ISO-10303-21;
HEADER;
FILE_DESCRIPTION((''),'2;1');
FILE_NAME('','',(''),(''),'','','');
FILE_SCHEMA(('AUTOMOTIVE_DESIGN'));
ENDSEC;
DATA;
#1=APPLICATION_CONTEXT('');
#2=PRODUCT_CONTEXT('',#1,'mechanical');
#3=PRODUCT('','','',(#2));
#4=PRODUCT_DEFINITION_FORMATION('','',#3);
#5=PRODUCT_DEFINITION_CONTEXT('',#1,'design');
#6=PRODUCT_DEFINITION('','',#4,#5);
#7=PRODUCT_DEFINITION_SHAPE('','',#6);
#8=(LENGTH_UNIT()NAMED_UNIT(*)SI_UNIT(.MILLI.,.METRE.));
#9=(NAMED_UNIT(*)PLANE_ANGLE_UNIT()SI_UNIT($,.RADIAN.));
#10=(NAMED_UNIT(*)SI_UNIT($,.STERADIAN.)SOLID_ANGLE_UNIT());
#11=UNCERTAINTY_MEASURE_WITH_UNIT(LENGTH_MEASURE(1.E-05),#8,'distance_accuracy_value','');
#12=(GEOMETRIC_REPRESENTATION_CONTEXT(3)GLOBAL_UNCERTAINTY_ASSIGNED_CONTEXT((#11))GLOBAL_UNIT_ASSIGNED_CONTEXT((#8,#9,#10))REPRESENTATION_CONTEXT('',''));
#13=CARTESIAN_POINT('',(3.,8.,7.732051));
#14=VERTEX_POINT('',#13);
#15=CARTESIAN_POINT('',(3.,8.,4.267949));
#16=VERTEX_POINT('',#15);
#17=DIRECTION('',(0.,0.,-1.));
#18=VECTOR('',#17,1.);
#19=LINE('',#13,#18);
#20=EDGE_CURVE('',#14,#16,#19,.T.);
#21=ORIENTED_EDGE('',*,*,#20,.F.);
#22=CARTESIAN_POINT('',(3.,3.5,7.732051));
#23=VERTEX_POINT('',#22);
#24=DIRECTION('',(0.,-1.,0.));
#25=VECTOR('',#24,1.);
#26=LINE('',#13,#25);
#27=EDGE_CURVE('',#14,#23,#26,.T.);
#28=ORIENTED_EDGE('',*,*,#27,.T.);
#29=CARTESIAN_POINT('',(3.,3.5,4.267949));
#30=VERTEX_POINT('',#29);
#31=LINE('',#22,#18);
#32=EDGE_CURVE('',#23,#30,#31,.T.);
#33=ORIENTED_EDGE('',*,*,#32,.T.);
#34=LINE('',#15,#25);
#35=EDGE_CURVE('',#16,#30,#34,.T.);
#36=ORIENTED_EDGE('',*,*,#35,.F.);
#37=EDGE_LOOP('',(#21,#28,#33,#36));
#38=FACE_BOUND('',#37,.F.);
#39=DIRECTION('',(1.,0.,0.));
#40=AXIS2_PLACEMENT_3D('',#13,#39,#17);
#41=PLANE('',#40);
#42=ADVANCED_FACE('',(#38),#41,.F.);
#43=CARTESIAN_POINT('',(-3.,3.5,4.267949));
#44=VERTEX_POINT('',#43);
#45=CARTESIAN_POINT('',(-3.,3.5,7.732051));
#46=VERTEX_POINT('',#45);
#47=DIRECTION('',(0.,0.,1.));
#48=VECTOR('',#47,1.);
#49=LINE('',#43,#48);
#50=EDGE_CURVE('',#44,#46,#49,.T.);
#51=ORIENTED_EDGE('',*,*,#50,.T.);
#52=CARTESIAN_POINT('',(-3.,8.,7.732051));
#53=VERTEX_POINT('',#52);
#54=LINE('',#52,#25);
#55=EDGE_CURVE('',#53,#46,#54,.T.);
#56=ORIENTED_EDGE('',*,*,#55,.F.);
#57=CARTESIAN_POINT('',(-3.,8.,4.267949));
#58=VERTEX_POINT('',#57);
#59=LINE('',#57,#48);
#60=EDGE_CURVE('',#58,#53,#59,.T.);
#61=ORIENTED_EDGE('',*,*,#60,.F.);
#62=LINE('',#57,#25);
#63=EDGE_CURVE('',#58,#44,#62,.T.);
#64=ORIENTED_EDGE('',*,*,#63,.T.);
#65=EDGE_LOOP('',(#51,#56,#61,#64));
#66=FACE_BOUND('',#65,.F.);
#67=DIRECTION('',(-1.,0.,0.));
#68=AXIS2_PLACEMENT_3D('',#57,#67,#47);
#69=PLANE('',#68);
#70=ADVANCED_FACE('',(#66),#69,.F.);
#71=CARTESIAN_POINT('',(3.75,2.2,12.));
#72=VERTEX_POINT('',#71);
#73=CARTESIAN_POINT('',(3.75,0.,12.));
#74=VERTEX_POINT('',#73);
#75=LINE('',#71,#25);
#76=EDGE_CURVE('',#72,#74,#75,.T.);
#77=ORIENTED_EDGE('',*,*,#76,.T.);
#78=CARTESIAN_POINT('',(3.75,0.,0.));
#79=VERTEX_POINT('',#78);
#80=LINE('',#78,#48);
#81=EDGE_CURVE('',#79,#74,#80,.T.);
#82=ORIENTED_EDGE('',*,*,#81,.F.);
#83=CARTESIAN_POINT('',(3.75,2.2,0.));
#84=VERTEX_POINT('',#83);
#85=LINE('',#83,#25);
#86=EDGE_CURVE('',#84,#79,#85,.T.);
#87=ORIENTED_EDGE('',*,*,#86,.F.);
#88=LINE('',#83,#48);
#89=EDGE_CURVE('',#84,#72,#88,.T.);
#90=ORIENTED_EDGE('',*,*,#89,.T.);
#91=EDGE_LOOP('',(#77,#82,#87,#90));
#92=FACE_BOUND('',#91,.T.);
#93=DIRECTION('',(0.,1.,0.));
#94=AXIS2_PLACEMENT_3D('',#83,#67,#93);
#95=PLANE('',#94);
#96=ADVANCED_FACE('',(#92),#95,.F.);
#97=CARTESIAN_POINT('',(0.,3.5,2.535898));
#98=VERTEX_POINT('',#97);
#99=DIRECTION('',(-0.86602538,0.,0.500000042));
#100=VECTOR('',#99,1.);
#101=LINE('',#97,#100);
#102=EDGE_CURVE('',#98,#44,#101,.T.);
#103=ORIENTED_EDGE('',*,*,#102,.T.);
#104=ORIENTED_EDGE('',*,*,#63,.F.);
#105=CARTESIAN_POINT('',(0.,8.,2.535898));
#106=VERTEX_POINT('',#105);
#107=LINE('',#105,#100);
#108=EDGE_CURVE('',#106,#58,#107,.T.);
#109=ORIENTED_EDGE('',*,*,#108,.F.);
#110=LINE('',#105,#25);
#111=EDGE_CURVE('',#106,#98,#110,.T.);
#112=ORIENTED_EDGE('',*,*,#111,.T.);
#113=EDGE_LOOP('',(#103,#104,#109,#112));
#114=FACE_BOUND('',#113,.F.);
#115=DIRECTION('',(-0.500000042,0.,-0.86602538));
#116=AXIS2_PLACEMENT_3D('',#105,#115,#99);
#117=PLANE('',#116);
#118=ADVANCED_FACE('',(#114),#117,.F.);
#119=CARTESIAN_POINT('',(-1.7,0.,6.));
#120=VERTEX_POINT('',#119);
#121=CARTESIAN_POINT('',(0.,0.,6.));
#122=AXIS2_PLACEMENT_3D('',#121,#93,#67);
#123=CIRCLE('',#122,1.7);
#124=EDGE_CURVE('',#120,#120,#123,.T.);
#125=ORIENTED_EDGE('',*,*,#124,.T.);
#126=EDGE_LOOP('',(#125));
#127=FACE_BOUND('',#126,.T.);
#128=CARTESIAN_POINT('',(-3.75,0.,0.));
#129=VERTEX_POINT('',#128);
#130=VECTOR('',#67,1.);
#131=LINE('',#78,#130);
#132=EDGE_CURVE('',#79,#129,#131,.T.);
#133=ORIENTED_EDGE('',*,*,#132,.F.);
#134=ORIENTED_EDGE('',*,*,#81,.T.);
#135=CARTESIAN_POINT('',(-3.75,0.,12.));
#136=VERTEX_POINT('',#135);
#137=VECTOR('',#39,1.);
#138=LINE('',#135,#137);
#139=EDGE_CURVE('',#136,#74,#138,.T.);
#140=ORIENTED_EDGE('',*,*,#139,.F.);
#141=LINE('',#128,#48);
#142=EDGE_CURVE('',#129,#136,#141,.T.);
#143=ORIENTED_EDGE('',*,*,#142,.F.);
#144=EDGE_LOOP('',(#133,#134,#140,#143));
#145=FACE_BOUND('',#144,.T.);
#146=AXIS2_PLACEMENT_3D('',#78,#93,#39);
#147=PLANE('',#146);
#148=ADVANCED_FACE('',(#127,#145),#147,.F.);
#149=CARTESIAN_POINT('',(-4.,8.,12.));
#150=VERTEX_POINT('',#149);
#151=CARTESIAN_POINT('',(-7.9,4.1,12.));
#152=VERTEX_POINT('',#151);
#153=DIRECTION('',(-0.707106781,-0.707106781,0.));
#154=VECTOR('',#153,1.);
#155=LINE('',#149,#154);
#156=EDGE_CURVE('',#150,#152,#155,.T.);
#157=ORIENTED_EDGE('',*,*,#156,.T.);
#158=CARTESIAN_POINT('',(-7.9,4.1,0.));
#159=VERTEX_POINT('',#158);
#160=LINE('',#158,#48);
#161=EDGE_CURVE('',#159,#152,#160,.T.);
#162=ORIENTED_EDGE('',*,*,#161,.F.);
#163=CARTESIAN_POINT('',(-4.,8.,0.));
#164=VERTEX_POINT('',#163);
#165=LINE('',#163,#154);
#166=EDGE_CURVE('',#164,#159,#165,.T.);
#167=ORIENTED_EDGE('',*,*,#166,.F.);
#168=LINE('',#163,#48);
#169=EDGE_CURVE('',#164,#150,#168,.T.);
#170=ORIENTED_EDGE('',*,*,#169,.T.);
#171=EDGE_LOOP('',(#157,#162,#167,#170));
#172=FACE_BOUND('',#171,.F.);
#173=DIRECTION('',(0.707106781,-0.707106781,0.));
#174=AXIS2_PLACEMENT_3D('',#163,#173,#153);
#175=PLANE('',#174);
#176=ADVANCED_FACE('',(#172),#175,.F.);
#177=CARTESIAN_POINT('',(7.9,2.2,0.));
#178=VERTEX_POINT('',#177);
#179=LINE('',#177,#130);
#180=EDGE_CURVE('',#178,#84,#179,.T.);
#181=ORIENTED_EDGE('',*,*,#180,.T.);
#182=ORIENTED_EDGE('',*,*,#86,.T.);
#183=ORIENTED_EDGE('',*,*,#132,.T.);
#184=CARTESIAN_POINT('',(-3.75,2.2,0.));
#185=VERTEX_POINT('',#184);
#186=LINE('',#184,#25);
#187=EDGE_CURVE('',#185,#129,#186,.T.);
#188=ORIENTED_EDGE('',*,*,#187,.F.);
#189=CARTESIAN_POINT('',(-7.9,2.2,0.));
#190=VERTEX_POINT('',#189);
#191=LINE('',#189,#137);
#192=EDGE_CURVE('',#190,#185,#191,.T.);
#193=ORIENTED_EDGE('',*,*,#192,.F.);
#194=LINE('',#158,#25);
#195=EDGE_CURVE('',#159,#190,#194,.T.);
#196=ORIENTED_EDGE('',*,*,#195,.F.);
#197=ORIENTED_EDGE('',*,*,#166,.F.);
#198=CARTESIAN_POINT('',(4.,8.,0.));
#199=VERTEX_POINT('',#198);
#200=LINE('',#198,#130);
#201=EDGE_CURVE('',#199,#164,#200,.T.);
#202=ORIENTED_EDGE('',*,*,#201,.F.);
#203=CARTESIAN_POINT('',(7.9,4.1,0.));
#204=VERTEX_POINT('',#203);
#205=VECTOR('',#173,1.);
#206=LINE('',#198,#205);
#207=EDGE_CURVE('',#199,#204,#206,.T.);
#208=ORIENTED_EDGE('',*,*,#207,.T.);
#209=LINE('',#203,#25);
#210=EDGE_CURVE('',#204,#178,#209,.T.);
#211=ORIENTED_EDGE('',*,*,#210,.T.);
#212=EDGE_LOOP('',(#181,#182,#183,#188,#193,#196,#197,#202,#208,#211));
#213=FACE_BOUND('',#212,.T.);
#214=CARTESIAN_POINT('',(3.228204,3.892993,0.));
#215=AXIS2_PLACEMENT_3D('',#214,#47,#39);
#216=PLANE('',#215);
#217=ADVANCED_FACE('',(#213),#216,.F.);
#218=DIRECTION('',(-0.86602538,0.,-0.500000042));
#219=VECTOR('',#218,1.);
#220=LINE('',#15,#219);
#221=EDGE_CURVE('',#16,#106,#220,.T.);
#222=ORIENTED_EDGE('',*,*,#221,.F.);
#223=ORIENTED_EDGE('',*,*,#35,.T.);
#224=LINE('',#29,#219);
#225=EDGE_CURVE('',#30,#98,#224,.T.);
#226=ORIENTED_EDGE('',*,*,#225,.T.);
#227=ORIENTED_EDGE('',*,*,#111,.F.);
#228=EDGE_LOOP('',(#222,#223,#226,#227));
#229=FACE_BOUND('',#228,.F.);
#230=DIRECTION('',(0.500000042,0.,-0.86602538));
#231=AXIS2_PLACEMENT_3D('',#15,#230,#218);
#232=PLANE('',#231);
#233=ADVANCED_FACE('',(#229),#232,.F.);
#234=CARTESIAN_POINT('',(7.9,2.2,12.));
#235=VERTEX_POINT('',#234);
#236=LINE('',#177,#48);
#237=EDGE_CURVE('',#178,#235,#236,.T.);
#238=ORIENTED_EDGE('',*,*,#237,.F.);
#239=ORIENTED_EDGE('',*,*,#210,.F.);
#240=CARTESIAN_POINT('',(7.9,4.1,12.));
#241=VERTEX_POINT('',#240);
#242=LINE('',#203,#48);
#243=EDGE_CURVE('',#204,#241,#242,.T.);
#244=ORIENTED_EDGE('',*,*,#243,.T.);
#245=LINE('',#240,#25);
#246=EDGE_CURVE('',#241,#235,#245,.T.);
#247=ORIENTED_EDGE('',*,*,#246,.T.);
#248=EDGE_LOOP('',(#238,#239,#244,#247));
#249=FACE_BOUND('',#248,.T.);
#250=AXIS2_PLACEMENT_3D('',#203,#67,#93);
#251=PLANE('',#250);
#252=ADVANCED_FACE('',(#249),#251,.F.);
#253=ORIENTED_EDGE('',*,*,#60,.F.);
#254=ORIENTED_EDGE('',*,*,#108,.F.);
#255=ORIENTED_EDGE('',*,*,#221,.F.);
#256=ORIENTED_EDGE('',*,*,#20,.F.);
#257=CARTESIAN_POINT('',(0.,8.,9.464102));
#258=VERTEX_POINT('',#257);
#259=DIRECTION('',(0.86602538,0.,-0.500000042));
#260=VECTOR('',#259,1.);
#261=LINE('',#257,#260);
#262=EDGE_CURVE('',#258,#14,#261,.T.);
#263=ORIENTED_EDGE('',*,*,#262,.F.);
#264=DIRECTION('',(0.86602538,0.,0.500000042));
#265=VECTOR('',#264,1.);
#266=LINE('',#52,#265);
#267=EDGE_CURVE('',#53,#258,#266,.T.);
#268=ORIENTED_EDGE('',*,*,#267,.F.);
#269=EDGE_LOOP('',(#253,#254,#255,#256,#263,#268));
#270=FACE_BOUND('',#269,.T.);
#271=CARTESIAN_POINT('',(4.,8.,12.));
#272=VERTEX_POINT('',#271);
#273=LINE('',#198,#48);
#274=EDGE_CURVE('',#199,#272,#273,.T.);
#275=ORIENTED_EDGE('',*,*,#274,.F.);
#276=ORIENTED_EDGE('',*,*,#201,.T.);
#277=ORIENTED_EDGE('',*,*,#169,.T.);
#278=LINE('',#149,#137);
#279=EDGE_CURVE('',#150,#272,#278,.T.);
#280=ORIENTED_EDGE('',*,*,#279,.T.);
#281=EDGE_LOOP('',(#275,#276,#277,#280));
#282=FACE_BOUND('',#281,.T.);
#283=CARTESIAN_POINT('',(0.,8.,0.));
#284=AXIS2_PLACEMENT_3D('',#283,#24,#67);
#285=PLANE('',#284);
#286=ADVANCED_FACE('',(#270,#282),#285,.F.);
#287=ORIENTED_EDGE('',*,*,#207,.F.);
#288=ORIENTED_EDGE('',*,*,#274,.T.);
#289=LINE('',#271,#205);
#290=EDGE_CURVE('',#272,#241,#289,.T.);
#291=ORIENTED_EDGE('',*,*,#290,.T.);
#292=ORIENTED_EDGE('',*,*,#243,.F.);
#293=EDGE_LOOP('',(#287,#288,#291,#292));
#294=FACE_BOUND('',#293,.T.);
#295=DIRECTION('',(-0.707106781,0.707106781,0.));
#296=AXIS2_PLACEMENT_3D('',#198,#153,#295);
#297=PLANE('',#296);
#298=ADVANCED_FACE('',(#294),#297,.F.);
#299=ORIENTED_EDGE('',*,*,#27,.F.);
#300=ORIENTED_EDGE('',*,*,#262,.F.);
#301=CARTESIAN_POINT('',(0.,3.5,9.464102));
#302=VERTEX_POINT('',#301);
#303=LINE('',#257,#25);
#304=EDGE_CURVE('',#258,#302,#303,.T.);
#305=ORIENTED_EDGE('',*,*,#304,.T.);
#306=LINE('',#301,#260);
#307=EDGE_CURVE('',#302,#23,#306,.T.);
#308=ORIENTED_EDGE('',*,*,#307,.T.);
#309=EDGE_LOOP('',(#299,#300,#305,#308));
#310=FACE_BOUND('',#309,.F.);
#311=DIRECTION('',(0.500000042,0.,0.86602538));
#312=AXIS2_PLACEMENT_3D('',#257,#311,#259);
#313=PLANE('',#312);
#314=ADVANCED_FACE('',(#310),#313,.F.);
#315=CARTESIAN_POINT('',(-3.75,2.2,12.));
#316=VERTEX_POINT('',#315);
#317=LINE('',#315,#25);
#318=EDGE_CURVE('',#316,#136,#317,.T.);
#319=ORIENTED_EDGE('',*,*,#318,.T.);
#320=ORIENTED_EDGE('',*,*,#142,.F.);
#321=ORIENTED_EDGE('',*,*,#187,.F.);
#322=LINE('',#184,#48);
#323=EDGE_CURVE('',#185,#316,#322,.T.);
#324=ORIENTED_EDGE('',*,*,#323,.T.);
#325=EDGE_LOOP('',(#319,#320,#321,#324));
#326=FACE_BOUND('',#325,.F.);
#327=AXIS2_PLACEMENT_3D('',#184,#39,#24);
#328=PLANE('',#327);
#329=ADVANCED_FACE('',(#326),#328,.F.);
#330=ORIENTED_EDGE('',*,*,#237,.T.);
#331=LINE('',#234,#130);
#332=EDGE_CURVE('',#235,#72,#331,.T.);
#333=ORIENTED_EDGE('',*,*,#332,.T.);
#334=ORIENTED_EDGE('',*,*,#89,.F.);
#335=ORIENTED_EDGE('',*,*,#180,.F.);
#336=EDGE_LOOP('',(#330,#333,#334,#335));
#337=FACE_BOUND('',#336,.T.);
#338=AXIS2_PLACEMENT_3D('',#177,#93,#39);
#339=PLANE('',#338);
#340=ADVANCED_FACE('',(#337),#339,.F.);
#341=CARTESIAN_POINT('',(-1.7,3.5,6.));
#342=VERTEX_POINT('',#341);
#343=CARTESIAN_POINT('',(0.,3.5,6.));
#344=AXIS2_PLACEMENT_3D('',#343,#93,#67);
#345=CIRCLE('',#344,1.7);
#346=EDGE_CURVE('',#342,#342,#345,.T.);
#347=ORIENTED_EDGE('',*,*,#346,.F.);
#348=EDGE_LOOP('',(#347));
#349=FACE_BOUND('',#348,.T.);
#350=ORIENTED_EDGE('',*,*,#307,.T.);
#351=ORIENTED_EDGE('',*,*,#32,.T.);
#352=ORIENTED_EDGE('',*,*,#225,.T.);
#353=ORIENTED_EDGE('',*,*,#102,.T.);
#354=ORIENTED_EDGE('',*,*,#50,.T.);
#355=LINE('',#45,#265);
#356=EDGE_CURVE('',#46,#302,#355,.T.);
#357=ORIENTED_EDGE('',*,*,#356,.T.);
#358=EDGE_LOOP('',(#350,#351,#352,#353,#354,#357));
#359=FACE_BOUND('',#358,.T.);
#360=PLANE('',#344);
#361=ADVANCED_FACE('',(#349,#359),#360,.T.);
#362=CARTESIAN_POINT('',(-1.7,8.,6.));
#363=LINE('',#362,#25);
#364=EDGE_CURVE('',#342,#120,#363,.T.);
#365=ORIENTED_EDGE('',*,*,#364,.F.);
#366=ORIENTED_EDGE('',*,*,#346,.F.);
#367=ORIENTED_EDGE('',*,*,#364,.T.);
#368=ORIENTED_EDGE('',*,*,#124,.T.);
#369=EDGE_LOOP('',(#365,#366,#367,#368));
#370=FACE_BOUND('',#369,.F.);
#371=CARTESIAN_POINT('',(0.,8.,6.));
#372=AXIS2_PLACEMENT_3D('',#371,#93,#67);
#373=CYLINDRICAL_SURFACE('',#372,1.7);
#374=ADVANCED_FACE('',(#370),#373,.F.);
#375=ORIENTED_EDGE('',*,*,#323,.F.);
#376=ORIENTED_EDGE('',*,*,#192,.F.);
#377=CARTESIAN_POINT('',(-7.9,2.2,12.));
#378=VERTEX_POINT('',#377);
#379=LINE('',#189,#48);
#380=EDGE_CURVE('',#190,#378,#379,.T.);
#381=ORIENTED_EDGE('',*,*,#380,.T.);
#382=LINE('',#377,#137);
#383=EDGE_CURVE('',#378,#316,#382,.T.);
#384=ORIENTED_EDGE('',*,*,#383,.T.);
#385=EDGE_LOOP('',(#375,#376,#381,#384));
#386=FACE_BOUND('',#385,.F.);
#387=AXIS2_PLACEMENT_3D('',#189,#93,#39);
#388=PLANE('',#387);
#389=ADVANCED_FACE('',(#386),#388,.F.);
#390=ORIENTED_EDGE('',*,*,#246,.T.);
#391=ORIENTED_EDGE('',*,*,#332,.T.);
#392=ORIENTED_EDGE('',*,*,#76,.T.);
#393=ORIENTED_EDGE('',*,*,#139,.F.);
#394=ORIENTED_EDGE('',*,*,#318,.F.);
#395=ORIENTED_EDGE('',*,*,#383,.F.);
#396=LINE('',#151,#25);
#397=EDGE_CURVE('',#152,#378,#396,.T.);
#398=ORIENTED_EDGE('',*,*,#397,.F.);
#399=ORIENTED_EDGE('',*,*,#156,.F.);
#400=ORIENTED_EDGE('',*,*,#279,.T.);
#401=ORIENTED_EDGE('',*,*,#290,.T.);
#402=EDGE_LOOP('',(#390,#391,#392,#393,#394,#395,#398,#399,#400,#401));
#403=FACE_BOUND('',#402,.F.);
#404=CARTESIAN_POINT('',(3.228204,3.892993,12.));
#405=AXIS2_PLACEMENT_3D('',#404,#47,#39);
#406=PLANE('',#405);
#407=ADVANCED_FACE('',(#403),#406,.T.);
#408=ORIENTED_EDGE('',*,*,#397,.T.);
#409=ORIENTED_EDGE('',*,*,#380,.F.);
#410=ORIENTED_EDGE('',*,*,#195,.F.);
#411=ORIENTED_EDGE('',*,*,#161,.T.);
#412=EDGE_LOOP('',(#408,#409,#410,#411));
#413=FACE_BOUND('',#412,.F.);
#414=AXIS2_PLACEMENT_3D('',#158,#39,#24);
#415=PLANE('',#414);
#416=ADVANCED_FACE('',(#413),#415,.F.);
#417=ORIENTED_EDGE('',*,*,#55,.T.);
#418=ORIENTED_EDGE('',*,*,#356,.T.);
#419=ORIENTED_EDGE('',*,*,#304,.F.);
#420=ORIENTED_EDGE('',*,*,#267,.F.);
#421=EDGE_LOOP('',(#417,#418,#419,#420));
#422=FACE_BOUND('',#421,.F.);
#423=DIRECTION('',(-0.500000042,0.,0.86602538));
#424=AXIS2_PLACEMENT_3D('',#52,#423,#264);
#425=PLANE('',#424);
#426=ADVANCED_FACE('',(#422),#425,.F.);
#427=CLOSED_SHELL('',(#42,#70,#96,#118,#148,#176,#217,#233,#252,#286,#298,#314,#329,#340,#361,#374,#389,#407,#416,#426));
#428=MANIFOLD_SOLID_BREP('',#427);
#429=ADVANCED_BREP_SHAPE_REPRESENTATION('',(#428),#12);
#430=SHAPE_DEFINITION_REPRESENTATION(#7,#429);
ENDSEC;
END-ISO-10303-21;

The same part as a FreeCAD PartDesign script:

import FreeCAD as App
import Part
import Sketcher
Q = App.Units.Quantity


def add_polygon(sketch, points):
    """Adds a closed chain of lines whose ends are joined by coincident constraints."""
    first, n = sketch.GeometryCount, len(points)
    for a, b in zip(points, points[1:] + points[:1]):
        sketch.addGeometry(Part.LineSegment(App.Vector(*a, 0), App.Vector(*b, 0)), False)
    for i in range(n):
        sketch.addConstraint(Sketcher.Constraint("Coincident", first + i, 2, first + (i + 1) % n, 1))

doc = App.newDocument("Part")
body = doc.addObject("PartDesign::Body", "Body")

sketch1 = body.newObject("Sketcher::SketchObject", "Sketch")
sketch1.AttachmentSupport = (doc.getObject("XY_Plane"), [""])
sketch1.MapMode = "FlatFace"
add_polygon(sketch1, [(0, 0), (0, 8), (-4, 8), (-7.9, 4.1), (-7.9, 2.2), (-3.8, 2.2), (-3.8, 0)])
sketch1.addConstraint(Sketcher.Constraint("Vertical", 0))
sketch1.addConstraint(Sketcher.Constraint("Horizontal", 1))
sketch1.addConstraint(Sketcher.Constraint("Vertical", 3))
sketch1.addConstraint(Sketcher.Constraint("Horizontal", 4))
sketch1.addConstraint(Sketcher.Constraint("Vertical", 5))
sketch1.addConstraint(Sketcher.Constraint("Horizontal", 6))
sketch1.addConstraint(Sketcher.Constraint("Coincident", 6, 2, -1, 1))
sketch1.addConstraint(Sketcher.Constraint("DistanceX", 1, 2, 1, 1, Q("4 mm")))
sketch1.addConstraint(Sketcher.Constraint("DistanceY", 0, 1, 0, 2, Q("8 mm")))
sketch1.addConstraint(Sketcher.Constraint("Angle", 2, Q("-135 deg")))
sketch1.addConstraint(Sketcher.Constraint("DistanceY", 3, 2, 3, 1, Q("1.9 mm")))
sketch1.addConstraint(Sketcher.Constraint("DistanceY", 5, 2, 5, 1, Q("2.2 mm")))
sketch1.addConstraint(Sketcher.Constraint("DistanceX", 4, 1, 4, 2, Q("4.15 mm")))
pad1 = body.newObject("PartDesign::Pad", "Pad")
pad1.Profile = sketch1
pad1.Length = 12
doc.recompute()

mirrored = body.newObject("PartDesign::Mirrored", "Mirrored")
mirrored.Originals = [pad1]
mirrored.MirrorPlane = (doc.getObject("YZ_Plane"), [""])
body.Tip = mirrored

sketch2 = body.newObject("Sketcher::SketchObject", "Sketch001")
sketch2.AttachmentSupport = (doc.getObject("XZ_Plane"), [""])
sketch2.MapMode = "FlatFace"
sketch2.AttachmentOffset = App.Placement(App.Vector(0, 0, -8), App.Rotation())
add_polygon(sketch2, [(0, 2.5), (-3, 4.3), (-3, 7.7), (0, 9.5), (3, 7.7), (3, 4.3)])
sketch2.addConstraint(Sketcher.Constraint("Vertical", 1))
sketch2.addConstraint(Sketcher.Constraint("Vertical", 4))
sketch2.addConstraint(Sketcher.Constraint("Symmetric", 1, 2, 3, 2, -2))
sketch2.addConstraint(Sketcher.Constraint("PointOnObject", 2, 2, -2))
sketch2.addConstraint(Sketcher.Constraint("PointOnObject", 5, 2, -2))
sketch2.addConstraint(Sketcher.Constraint("Parallel", 0, 3))
sketch2.addConstraint(Sketcher.Constraint("Parallel", 2, 5))
sketch2.addConstraint(Sketcher.Constraint("Angle", 0, Q("149.999997 deg")))
sketch2.addConstraint(Sketcher.Constraint("DistanceX", 0, 2, -1, 1, Q("3 mm")))
sketch2.addConstraint(Sketcher.Constraint("DistanceY", -1, 1, 5, 2, Q("2.535898 mm")))
sketch2.addConstraint(Sketcher.Constraint("DistanceY", 1, 1, 1, 2, Q("3.464102 mm")))
pocket1 = body.newObject("PartDesign::Pocket", "Pocket")
pocket1.Profile = sketch2
pocket1.Length = 4.5
pocket1.Reversed = True

sketch3 = body.newObject("Sketcher::SketchObject", "Sketch002")
sketch3.AttachmentSupport = (doc.getObject("XZ_Plane"), [""])
sketch3.MapMode = "FlatFace"
sketch3.AttachmentOffset = App.Placement(App.Vector(0, 0, -8), App.Rotation())
sketch3.addGeometry(Part.Circle(App.Vector(0, 6, 0), App.Vector(0, 0, 1), 1.7), False)
sketch3.addConstraint(Sketcher.Constraint("PointOnObject", 0, 3, -2))
sketch3.addConstraint(Sketcher.Constraint("Diameter", 0, Q("3.4 mm")))
sketch3.addConstraint(Sketcher.Constraint("DistanceY", -1, 1, 0, 3, Q("6 mm")))
pocket2 = body.newObject("PartDesign::Pocket", "Pocket001")
pocket2.Profile = sketch3
pocket2.Length = 25
pocket2.Reversed = True

doc.recompute()
